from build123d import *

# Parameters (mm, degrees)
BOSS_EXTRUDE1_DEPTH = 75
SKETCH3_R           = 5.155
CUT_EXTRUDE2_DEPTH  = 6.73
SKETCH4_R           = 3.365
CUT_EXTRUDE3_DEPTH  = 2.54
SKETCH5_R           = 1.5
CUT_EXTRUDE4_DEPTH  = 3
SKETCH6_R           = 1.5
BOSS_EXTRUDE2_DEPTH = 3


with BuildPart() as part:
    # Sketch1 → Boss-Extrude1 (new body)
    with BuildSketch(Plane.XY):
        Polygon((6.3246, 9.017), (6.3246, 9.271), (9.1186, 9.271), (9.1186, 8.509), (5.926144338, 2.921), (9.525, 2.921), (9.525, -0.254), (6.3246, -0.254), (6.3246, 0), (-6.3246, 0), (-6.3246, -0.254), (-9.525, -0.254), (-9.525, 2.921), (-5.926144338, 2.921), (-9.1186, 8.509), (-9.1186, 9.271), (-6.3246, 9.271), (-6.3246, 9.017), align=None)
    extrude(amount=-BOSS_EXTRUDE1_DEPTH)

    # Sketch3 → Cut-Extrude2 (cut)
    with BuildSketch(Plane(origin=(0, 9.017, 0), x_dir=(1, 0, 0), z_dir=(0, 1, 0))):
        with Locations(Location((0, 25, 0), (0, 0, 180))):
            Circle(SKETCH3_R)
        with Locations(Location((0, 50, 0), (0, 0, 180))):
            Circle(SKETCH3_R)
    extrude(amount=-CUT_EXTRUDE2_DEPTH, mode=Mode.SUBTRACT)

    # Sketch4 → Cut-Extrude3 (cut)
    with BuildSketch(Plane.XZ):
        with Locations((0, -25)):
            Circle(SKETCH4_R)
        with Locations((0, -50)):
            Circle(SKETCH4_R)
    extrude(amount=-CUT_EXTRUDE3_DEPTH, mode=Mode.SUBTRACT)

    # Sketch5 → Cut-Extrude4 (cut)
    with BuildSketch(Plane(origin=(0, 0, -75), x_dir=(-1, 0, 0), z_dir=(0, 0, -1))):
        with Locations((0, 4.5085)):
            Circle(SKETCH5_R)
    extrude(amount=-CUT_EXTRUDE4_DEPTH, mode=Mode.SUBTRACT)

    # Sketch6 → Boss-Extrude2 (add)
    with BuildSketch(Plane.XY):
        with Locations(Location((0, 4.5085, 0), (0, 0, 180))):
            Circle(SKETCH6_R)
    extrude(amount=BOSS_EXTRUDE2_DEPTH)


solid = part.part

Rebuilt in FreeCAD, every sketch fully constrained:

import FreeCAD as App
import Part
import Sketcher

V = App.Vector
Q = App.Units.Quantity

doc = App.newDocument("Part")
params = doc.addObject("Spreadsheet::Sheet", "Params")
for row, (alias, value) in enumerate([
    ("sketch1_width", "0.11 in"),
    ("sketch1_height", "0.01 in"),
    ("sketch1_height2", "0.03 in"),
    ("sketch1_width2", "0.498 in"),
    ("sketch1_width3", "0.126 in"),
    ("pad1_length", "75 mm"),
    ("pocket1_length", "6.73 mm"),
    ("pocket2_length", "0.1 in"),
    ("pocket3_length", "3 mm"),
    ("pad2_length", "3 mm"),
], start=1):
    params.set(f"A{row}", alias)
    params.set(f"B{row}", "=" + value)
    params.setAlias(f"B{row}", alias)

body = doc.addObject("PartDesign::Body", "Body")

# Sketch on XY plane
sketch1 = doc.addObject("Sketcher::SketchObject", "Sketch")
body.addObject(sketch1)
sketch1.AttachmentSupport = (doc.XY_Plane, [""])
sketch1.MapMode = "FlatFace"
sketch1.addGeometry(Part.LineSegment(V(6.3246, 9.271, 0), V(6.3246, 9.017, 0)), False)
sketch1.addGeometry(Part.LineSegment(V(6.3246, 9.017, 0), V(-6.3246, 9.017, 0)), False)
sketch1.addGeometry(Part.LineSegment(V(-6.3246, 9.017, 0), V(-6.3246, 9.271, 0)), False)
sketch1.addGeometry(Part.LineSegment(V(-6.3246, 9.271, 0), V(-9.1186, 9.271, 0)), False)
sketch1.addGeometry(Part.LineSegment(V(-9.1186, 9.271, 0), V(-9.1186, 8.509, 0)), False)
sketch1.addGeometry(Part.LineSegment(V(-9.1186, 8.509, 0), V(-5.926144, 2.921, 0)), False)
sketch1.addGeometry(Part.LineSegment(V(-5.926144, 2.921, 0), V(-9.525, 2.921, 0)), False)
sketch1.addGeometry(Part.LineSegment(V(-9.525, 2.921, 0), V(-9.525, -0.254, 0)), False)
sketch1.addGeometry(Part.LineSegment(V(-9.525, -0.254, 0), V(-6.3246, -0.254, 0)), False)
sketch1.addGeometry(Part.LineSegment(V(-6.3246, -0.254, 0), V(-6.3246, 0, 0)), False)
sketch1.addGeometry(Part.LineSegment(V(-6.3246, 0, 0), V(6.3246, 0, 0)), False)
sketch1.addGeometry(Part.LineSegment(V(6.3246, 0, 0), V(6.3246, -0.254, 0)), False)
sketch1.addGeometry(Part.LineSegment(V(6.3246, -0.254, 0), V(9.525, -0.254, 0)), False)
sketch1.addGeometry(Part.LineSegment(V(9.525, -0.254, 0), V(9.525, 2.921, 0)), False)
sketch1.addGeometry(Part.LineSegment(V(9.525, 2.921, 0), V(5.926144, 2.921, 0)), False)
sketch1.addGeometry(Part.LineSegment(V(5.926144, 2.921, 0), V(9.1186, 8.509, 0)), False)
sketch1.addGeometry(Part.LineSegment(V(9.1186, 8.509, 0), V(9.1186, 9.271, 0)), False)
sketch1.addGeometry(Part.LineSegment(V(9.1186, 9.271, 0), V(6.3246, 9.271, 0)), False)
sketch1.addConstraint(Sketcher.Constraint("Coincident", 0, 2, 1, 1))
sketch1.addConstraint(Sketcher.Constraint("Coincident", 1, 2, 2, 1))
sketch1.addConstraint(Sketcher.Constraint("Coincident", 2, 2, 3, 1))
sketch1.addConstraint(Sketcher.Constraint("Coincident", 3, 2, 4, 1))
sketch1.addConstraint(Sketcher.Constraint("Coincident", 4, 2, 5, 1))
sketch1.addConstraint(Sketcher.Constraint("Coincident", 5, 2, 6, 1))
sketch1.addConstraint(Sketcher.Constraint("Coincident", 6, 2, 7, 1))
sketch1.addConstraint(Sketcher.Constraint("Coincident", 7, 2, 8, 1))
sketch1.addConstraint(Sketcher.Constraint("Coincident", 8, 2, 9, 1))
sketch1.addConstraint(Sketcher.Constraint("Coincident", 9, 2, 10, 1))
sketch1.addConstraint(Sketcher.Constraint("Coincident", 10, 2, 11, 1))
sketch1.addConstraint(Sketcher.Constraint("Coincident", 11, 2, 12, 1))
sketch1.addConstraint(Sketcher.Constraint("Coincident", 12, 2, 13, 1))
sketch1.addConstraint(Sketcher.Constraint("Coincident", 13, 2, 14, 1))
sketch1.addConstraint(Sketcher.Constraint("Coincident", 14, 2, 15, 1))
sketch1.addConstraint(Sketcher.Constraint("Coincident", 15, 2, 16, 1))
sketch1.addConstraint(Sketcher.Constraint("Coincident", 16, 2, 17, 1))
sketch1.addConstraint(Sketcher.Constraint("Coincident", 17, 2, 0, 1))
sketch1.addConstraint(Sketcher.Constraint("Vertical", 0))
sketch1.addConstraint(Sketcher.Constraint("Horizontal", 1))
sketch1.addConstraint(Sketcher.Constraint("Vertical", 2))
sketch1.addConstraint(Sketcher.Constraint("Horizontal", 3))
sketch1.addConstraint(Sketcher.Constraint("Vertical", 4))
sketch1.addConstraint(Sketcher.Constraint("Horizontal", 6))
sketch1.addConstraint(Sketcher.Constraint("Vertical", 7))
sketch1.addConstraint(Sketcher.Constraint("Horizontal", 8))
sketch1.addConstraint(Sketcher.Constraint("Vertical", 9))
sketch1.addConstraint(Sketcher.Constraint("Horizontal", 10))
sketch1.addConstraint(Sketcher.Constraint("Vertical", 11))
sketch1.addConstraint(Sketcher.Constraint("Horizontal", 12))
sketch1.addConstraint(Sketcher.Constraint("Vertical", 13))
sketch1.addConstraint(Sketcher.Constraint("Horizontal", 14))
sketch1.addConstraint(Sketcher.Constraint("Vertical", 16))
sketch1.addConstraint(Sketcher.Constraint("Horizontal", 17))
sketch1.addConstraint(Sketcher.Constraint("Symmetric", 9, 2, 10, 2, -1, 1))
sketch1.addConstraint(Sketcher.Constraint("Symmetric", 7, 2, 12, 2, -2))
sketch1.addConstraint(Sketcher.Constraint("Symmetric", 5, 2, 14, 2, -2))
sketch1.addConstraint(Sketcher.Constraint("Symmetric", 4, 2, 15, 2, -2))
sketch1.addConstraint(Sketcher.Constraint("Symmetric", 2, 2, 17, 2, -2))
sketch1.addConstraint(Sketcher.Constraint("Vertical", 2, 2, 8, 2))
sketch1.addConstraint(Sketcher.Constraint("Equal", 2, 9))
sketch1.addConstraint(Sketcher.Constraint("DistanceX", 3, 2, 3, 1, Q("0.11 in")))
sketch1.addConstraint(Sketcher.Constraint("DistanceY", 0, 2, 0, 1, Q("0.01 in")))
sketch1.addConstraint(Sketcher.Constraint("DistanceY", 4, 2, 4, 1, Q("0.03 in")))
sketch1.addConstraint(Sketcher.Constraint("DistanceX", 1, 2, 1, 1, Q("0.498 in")))
sketch1.addConstraint(Sketcher.Constraint("DistanceX", 8, 1, 8, 2, Q("0.126 in")))
sketch1.addConstraint(Sketcher.Constraint("DistanceY", 7, 2, 7, 1, Q("0.125 in")))
sketch1.addConstraint(Sketcher.Constraint("DistanceY", 5, 2, 1, 2, Q("0.24 in")))
sketch1.addConstraint(Sketcher.Constraint("DistanceX", 6, 2, 6, 1, Q("3.598856 mm")))
sketch1.setExpression("Constraints[41]", "Params.sketch1_width")
sketch1.setExpression("Constraints[42]", "Params.sketch1_height")
sketch1.setExpression("Constraints[43]", "Params.sketch1_height2")
sketch1.setExpression("Constraints[44]", "Params.sketch1_width2")
sketch1.setExpression("Constraints[45]", "Params.sketch1_width3")
pad1 = doc.addObject("PartDesign::Pad", "Pad")
body.addObject(pad1)
pad1.Profile = sketch1
pad1.setExpression("Length", "Params.pad1_length")
pad1.Reversed = True

# Sketch on XZ plane
sketch2 = doc.addObject("Sketcher::SketchObject", "Sketch001")
body.addObject(sketch2)
sketch2.AttachmentSupport = (doc.XZ_Plane, [""])
sketch2.MapMode = "FlatFace"
sketch2.AttachmentOffset = App.Placement(V(0, 0, -0.355 * 25.4), App.Rotation())
sketch2.addGeometry(Part.Circle(V(0, -25, 0), V(0, 0, 1), 5.155), False)
sketch2.addGeometry(Part.Circle(V(0, -50, 0), V(0, 0, 1), 5.155), False)
sketch2.addConstraint(Sketcher.Constraint("Equal", 0, 1))
sketch2.addConstraint(Sketcher.Constraint("PointOnObject", 0, 3, -2))
sketch2.addConstraint(Sketcher.Constraint("PointOnObject", 1, 3, -2))
sketch2.addConstraint(Sketcher.Constraint("Diameter", 0, Q("10.31 mm")))
sketch2.addConstraint(Sketcher.Constraint("DistanceY", 0, 3, -1, 1, Q("25 mm")))
sketch2.addConstraint(Sketcher.Constraint("DistanceY", 1, 3, -1, 1, Q("50 mm")))
pocket1 = doc.addObject("PartDesign::Pocket", "Pocket")
body.addObject(pocket1)
pocket1.Profile = sketch2
pocket1.setExpression("Length", "Params.pocket1_length")
pocket1.Reversed = True

# Sketch on XZ plane
sketch3 = doc.addObject("Sketcher::SketchObject", "Sketch002")
body.addObject(sketch3)
sketch3.AttachmentSupport = (doc.XZ_Plane, [""])
sketch3.MapMode = "FlatFace"
sketch3.addGeometry(Part.Circle(V(0, -25, 0), V(0, 0, 1), 3.365), False)
sketch3.addGeometry(Part.Circle(V(0, -50, 0), V(0, 0, 1), 3.365), False)
sketch3.addConstraint(Sketcher.Constraint("Equal", 0, 1))
sketch3.addConstraint(Sketcher.Constraint("PointOnObject", 0, 3, -2))
sketch3.addConstraint(Sketcher.Constraint("PointOnObject", 1, 3, -2))
sketch3.addConstraint(Sketcher.Constraint("Diameter", 0, Q("6.73 mm")))
sketch3.addConstraint(Sketcher.Constraint("DistanceY", 0, 3, -1, 1, Q("25 mm")))
sketch3.addConstraint(Sketcher.Constraint("DistanceY", 1, 3, -1, 1, Q("50 mm")))
pocket2 = doc.addObject("PartDesign::Pocket", "Pocket001")
body.addObject(pocket2)
pocket2.Profile = sketch3
pocket2.setExpression("Length", "Params.pocket2_length")

# Sketch on XY plane
sketch4 = doc.addObject("Sketcher::SketchObject", "Sketch003")
body.addObject(sketch4)
sketch4.AttachmentSupport = (doc.XY_Plane, [""])
sketch4.MapMode = "FlatFace"
sketch4.AttachmentOffset = App.Placement(V(0, 0, -75), App.Rotation())
sketch4.addGeometry(Part.Circle(V(0, 4.5085, 0), V(0, 0, 1), 1.5), False)
sketch4.addConstraint(Sketcher.Constraint("PointOnObject", 0, 3, -2))
sketch4.addConstraint(Sketcher.Constraint("Diameter", 0, Q("3 mm")))
sketch4.addConstraint(Sketcher.Constraint("DistanceY", -1, 1, 0, 3, Q("0.1775 in")))
pocket3 = doc.addObject("PartDesign::Pocket", "Pocket002")
body.addObject(pocket3)
pocket3.Profile = sketch4
pocket3.setExpression("Length", "Params.pocket3_length")
pocket3.Reversed = True

# Sketch on XY plane
sketch5 = doc.addObject("Sketcher::SketchObject", "Sketch004")
body.addObject(sketch5)
sketch5.AttachmentSupport = (doc.XY_Plane, [""])
sketch5.MapMode = "FlatFace"
sketch5.addGeometry(Part.Circle(V(0, 4.5085, 0), V(0, 0, 1), 1.5), False)
sketch5.addConstraint(Sketcher.Constraint("PointOnObject", 0, 3, -2))
sketch5.addConstraint(Sketcher.Constraint("Diameter", 0, Q("3 mm")))
sketch5.addConstraint(Sketcher.Constraint("DistanceY", -1, 1, 0, 3, Q("0.1775 in")))
pad2 = doc.addObject("PartDesign::Pad", "Pad001")
body.addObject(pad2)
pad2.Profile = sketch5
pad2.setExpression("Length", "Params.pad2_length")

doc.recompute()
